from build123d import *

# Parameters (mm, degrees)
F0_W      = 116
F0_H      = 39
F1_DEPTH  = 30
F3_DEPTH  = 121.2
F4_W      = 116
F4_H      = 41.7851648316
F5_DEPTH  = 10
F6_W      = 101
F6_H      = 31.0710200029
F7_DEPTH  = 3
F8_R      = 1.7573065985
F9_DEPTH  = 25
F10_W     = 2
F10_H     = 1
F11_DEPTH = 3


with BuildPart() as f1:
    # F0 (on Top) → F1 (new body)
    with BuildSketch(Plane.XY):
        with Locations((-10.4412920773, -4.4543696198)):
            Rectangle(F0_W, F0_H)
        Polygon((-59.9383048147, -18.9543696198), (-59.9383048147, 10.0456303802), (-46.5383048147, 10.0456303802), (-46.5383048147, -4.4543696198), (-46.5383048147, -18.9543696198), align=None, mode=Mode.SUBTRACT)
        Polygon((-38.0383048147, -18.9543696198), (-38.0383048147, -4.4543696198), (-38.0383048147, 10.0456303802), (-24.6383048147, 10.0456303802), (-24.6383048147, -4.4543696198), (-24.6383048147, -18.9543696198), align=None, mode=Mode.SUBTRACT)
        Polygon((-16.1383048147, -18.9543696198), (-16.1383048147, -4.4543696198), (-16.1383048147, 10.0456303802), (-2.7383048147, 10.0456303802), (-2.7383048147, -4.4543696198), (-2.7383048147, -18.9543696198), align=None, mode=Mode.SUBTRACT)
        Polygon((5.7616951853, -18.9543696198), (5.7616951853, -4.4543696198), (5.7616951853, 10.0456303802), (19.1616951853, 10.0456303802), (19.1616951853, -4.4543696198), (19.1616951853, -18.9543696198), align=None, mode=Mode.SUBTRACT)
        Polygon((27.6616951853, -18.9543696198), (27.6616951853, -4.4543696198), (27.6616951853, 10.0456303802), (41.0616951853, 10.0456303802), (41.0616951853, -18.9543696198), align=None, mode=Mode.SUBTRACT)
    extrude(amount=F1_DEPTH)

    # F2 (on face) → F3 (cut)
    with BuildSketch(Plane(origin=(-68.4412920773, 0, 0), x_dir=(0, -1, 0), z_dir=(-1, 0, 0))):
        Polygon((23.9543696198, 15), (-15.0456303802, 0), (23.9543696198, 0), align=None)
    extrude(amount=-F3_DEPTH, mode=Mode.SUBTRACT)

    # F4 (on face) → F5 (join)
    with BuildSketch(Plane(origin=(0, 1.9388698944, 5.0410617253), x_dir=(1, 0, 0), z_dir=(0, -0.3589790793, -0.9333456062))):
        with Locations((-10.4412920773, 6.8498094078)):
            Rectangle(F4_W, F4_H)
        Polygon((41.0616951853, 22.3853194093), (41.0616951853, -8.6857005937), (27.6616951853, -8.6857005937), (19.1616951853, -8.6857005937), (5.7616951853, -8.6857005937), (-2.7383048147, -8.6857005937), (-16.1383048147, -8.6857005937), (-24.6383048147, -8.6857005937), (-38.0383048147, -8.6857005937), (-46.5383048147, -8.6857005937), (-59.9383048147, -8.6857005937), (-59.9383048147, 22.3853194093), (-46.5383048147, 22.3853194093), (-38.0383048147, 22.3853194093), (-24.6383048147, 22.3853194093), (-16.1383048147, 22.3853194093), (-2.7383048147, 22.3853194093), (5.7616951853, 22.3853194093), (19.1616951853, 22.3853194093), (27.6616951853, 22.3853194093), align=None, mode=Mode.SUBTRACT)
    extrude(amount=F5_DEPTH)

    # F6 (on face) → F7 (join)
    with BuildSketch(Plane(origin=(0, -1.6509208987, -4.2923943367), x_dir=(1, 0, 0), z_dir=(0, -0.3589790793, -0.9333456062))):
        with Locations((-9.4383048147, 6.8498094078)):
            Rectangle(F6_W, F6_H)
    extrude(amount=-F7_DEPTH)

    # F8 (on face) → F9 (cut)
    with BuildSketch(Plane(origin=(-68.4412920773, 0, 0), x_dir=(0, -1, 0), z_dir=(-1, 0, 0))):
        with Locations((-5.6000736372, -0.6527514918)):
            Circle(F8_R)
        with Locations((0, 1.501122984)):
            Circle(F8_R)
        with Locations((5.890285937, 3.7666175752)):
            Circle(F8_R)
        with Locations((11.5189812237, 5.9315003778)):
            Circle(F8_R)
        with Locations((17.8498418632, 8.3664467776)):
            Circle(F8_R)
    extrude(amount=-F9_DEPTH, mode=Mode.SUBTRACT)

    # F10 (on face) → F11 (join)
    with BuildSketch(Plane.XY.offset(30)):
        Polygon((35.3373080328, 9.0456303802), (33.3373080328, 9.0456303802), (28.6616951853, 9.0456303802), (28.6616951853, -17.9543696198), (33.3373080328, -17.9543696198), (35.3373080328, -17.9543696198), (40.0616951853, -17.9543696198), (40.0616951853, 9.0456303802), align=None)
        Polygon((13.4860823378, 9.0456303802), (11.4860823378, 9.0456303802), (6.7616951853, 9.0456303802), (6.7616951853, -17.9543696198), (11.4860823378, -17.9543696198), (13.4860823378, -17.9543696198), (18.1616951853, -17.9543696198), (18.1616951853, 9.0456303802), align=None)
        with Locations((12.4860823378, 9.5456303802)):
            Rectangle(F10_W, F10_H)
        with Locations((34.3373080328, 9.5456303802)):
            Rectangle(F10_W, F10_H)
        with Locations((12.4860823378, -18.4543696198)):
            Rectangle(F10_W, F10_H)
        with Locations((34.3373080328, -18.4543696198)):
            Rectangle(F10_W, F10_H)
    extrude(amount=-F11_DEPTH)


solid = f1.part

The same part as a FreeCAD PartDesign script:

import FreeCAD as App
import Part
import Sketcher

V = App.Vector


def add_polygon(sketch, points):
    """Adds a closed chain of lines whose ends are joined by coincident constraints."""
    first, n = sketch.GeometryCount, len(points)
    for a, b in zip(points, points[1:] + points[:1]):
        sketch.addGeometry(Part.LineSegment(App.Vector(*a, 0), App.Vector(*b, 0)), False)
    for i in range(n):
        sketch.addConstraint(Sketcher.Constraint("Coincident", first + i, 2, first + (i + 1) % n, 1))

doc = App.newDocument("Part")
body = doc.addObject("PartDesign::Body", "Body")

# Sketch on XY plane
sketch1 = doc.addObject("Sketcher::SketchObject", "Sketch")
body.addObject(sketch1)
sketch1.AttachmentSupport = (doc.XY_Plane, [""])
sketch1.MapMode = "FlatFace"
add_polygon(sketch1, [(-68.441292, 15.04563), (-68.441292, -23.95437), (47.558708, -23.95437), (47.558708, 15.04563)])  # lines 0-3
add_polygon(sketch1, [(-46.538305, -18.95437), (-59.938305, -18.95437), (-59.938305, 10.04563), (-46.538305, 10.04563)])  # lines 4-7
add_polygon(sketch1, [(-24.638305, -18.95437), (-38.038305, -18.95437), (-38.038305, 10.04563), (-24.638305, 10.04563)])  # lines 8-11
add_polygon(sketch1, [(-2.738305, -18.95437), (-16.138305, -18.95437), (-16.138305, 10.04563), (-2.738305, 10.04563)])  # lines 12-15
add_polygon(sketch1, [(19.161695, -18.95437), (5.761695, -18.95437), (5.761695, 10.04563), (19.161695, 10.04563)])  # lines 16-19
add_polygon(sketch1, [(41.061695, -18.95437), (27.661695, -18.95437), (27.661695, 10.04563), (41.061695, 10.04563)])  # lines 20-23
sketch1.addConstraint(Sketcher.Constraint("Vertical", 0))
sketch1.addConstraint(Sketcher.Constraint("Horizontal", 1))
sketch1.addConstraint(Sketcher.Constraint("Vertical", 2))
sketch1.addConstraint(Sketcher.Constraint("Horizontal", 3))
sketch1.addConstraint(Sketcher.Constraint("Horizontal", 4))
sketch1.addConstraint(Sketcher.Constraint("Vertical", 5))
sketch1.addConstraint(Sketcher.Constraint("Horizontal", 6))
sketch1.addConstraint(Sketcher.Constraint("Vertical", 7))
sketch1.addConstraint(Sketcher.Constraint("Horizontal", 8))
sketch1.addConstraint(Sketcher.Constraint("Vertical", 9))
sketch1.addConstraint(Sketcher.Constraint("Horizontal", 10))
sketch1.addConstraint(Sketcher.Constraint("Vertical", 11))
sketch1.addConstraint(Sketcher.Constraint("Horizontal", 12))
sketch1.addConstraint(Sketcher.Constraint("Vertical", 13))
sketch1.addConstraint(Sketcher.Constraint("Horizontal", 14))
sketch1.addConstraint(Sketcher.Constraint("Vertical", 15))
sketch1.addConstraint(Sketcher.Constraint("Horizontal", 16))
sketch1.addConstraint(Sketcher.Constraint("Vertical", 17))
sketch1.addConstraint(Sketcher.Constraint("Horizontal", 18))
sketch1.addConstraint(Sketcher.Constraint("Vertical", 19))
sketch1.addConstraint(Sketcher.Constraint("Horizontal", 20))
sketch1.addConstraint(Sketcher.Constraint("Vertical", 21))
sketch1.addConstraint(Sketcher.Constraint("Horizontal", 22))
sketch1.addConstraint(Sketcher.Constraint("Vertical", 23))
sketch1.addConstraint(Sketcher.Constraint("Horizontal", 7, 2, 8, 2))
sketch1.addConstraint(Sketcher.Constraint("Horizontal", 6, 2, 9, 2))
sketch1.addConstraint(Sketcher.Constraint("Horizontal", 11, 2, 12, 2))
sketch1.addConstraint(Sketcher.Constraint("Horizontal", 10, 2, 13, 2))
sketch1.addConstraint(Sketcher.Constraint("Horizontal", 15, 2, 16, 2))
sketch1.addConstraint(Sketcher.Constraint("Horizontal", 14, 2, 17, 2))
sketch1.addConstraint(Sketcher.Constraint("Horizontal", 19, 2, 20, 2))
sketch1.addConstraint(Sketcher.Constraint("Horizontal", 18, 2, 21, 2))
sketch1.addConstraint(Sketcher.Constraint("Equal", 6, 8))
sketch1.addConstraint(Sketcher.Constraint("Equal", 10, 12))
sketch1.addConstraint(Sketcher.Constraint("Equal", 14, 16))
sketch1.addConstraint(Sketcher.Constraint("Equal", 18, 20))
sketch1.addConstraint(Sketcher.Constraint("DistanceX", 1, 1, 1, 2, 116.0))
sketch1.addConstraint(Sketcher.Constraint("DistanceY", 0, 2, 0, 1, 39.0))
sketch1.addConstraint(Sketcher.Constraint("DistanceY", 5, 1, 5, 2, 29.0))
sketch1.addConstraint(Sketcher.Constraint("DistanceX", 4, 2, 4, 1, 13.4))
sketch1.addConstraint(Sketcher.Constraint("DistanceY", 0, 2, 4, 2, 5.0))
sketch1.addConstraint(Sketcher.Constraint("DistanceX", 7, 2, 8, 2, 8.5))
sketch1.addConstraint(Sketcher.Constraint("DistanceX", 11, 2, 12, 2, 8.5))
sketch1.addConstraint(Sketcher.Constraint("DistanceX", 15, 2, 16, 2, 8.5))
sketch1.addConstraint(Sketcher.Constraint("DistanceX", 19, 2, 20, 2, 8.5))
sketch1.addConstraint(Sketcher.Constraint("DistanceY", 0, 2, -1, 1, 23.95437))
sketch1.addConstraint(Sketcher.Constraint("DistanceX", 0, 2, -1, 1, 68.441292))
sketch1.addConstraint(Sketcher.Constraint("DistanceX", 4, 2, -1, 1, 59.938305))
pad1 = doc.addObject("PartDesign::Pad", "Pad")
body.addObject(pad1)
pad1.Profile = sketch1
pad1.Length = 30

# Sketch on YZ plane
sketch2 = doc.addObject("Sketcher::SketchObject", "Sketch001")
body.addObject(sketch2)
sketch2.AttachmentSupport = (doc.YZ_Plane, [""])
sketch2.MapMode = "FlatFace"
sketch2.AttachmentOffset = App.Placement(V(0, 0, -68.441292), App.Rotation())
add_polygon(sketch2, [(-23.95437, 15), (15.04563, 0), (-23.95437, 0)])  # lines 0-2
sketch2.addConstraint(Sketcher.Constraint("Horizontal", 1))
sketch2.addConstraint(Sketcher.Constraint("Vertical", 2))
sketch2.addConstraint(Sketcher.Constraint("PointOnObject", 0, 2, -1))
sketch2.addConstraint(Sketcher.Constraint("DistanceX", 1, 2, 1, 1, 39.0))
sketch2.addConstraint(Sketcher.Constraint("DistanceY", 2, 1, 2, 2, 15.0))
sketch2.addConstraint(Sketcher.Constraint("DistanceX", -1, 1, 0, 2, 15.04563))
pocket1 = doc.addObject("PartDesign::Pocket", "Pocket")
body.addObject(pocket1)
pocket1.Profile = sketch2
pocket1.Length = 121.2
pocket1.Reversed = True

# Sketch on an angled plane
sketch3 = doc.addObject("Sketcher::SketchObject", "Sketch002")
body.addObject(sketch3)
sketch3.Placement = App.Placement(V(0, 1.93887, 5.041062), App.Rotation(V(1, 0, 0), V(0, -0.933345606, 0.358979079), V(0, -0.358979079, -0.933345606), "ZXY"))
add_polygon(sketch3, [(-68.441292, 27.742392), (-68.441292, -14.042773), (47.558708, -14.042773), (47.558708, 27.742392)])  # lines 0-3
add_polygon(sketch3, [(-59.938305, 22.385319), (41.061695, 22.385319), (41.061695, -8.685701), (-59.938305, -8.685701)])  # lines 4-7
sketch3.addConstraint(Sketcher.Constraint("Vertical", 0))
sketch3.addConstraint(Sketcher.Constraint("Horizontal", 1))
sketch3.addConstraint(Sketcher.Constraint("Vertical", 2))
sketch3.addConstraint(Sketcher.Constraint("Horizontal", 3))
sketch3.addConstraint(Sketcher.Constraint("Horizontal", 4))
sketch3.addConstraint(Sketcher.Constraint("Vertical", 5))
sketch3.addConstraint(Sketcher.Constraint("Horizontal", 6))
sketch3.addConstraint(Sketcher.Constraint("Vertical", 7))
sketch3.addConstraint(Sketcher.Constraint("DistanceX", 1, 1, 1, 2, 116.0))
sketch3.addConstraint(Sketcher.Constraint("DistanceX", 4, 1, 4, 2, 101.0))
sketch3.addConstraint(Sketcher.Constraint("DistanceY", 5, 2, 5, 1, 31.07102))
sketch3.addConstraint(Sketcher.Constraint("DistanceY", 5, 2, -1, 1, 8.685701))
sketch3.addConstraint(Sketcher.Constraint("DistanceY", 0, 2, 0, 1, 41.785165))
sketch3.addConstraint(Sketcher.Constraint("DistanceY", -1, 1, 2, 2, 27.742392))
sketch3.addConstraint(Sketcher.Constraint("DistanceX", 0, 2, -1, 1, 68.441292))
sketch3.addConstraint(Sketcher.Constraint("DistanceX", -1, 1, 4, 2, 41.061695))
pad2 = doc.addObject("PartDesign::Pad", "Pad001")
body.addObject(pad2)
pad2.Profile = sketch3
pad2.Length = 10

# Sketch on an angled plane
sketch4 = doc.addObject("Sketcher::SketchObject", "Sketch003")
body.addObject(sketch4)
sketch4.Placement = App.Placement(V(0, -1.650921, -4.292394), App.Rotation(V(1, 0, 0), V(0, -0.933345606, 0.358979079), V(0, -0.358979079, -0.933345606), "ZXY"))
add_polygon(sketch4, [(-59.938305, 22.385319), (-59.938305, -8.685701), (41.061695, -8.685701), (41.061695, 22.385319)])  # lines 0-3
sketch4.addConstraint(Sketcher.Constraint("Vertical", 0))
sketch4.addConstraint(Sketcher.Constraint("Horizontal", 1))
sketch4.addConstraint(Sketcher.Constraint("Vertical", 2))
sketch4.addConstraint(Sketcher.Constraint("Horizontal", 3))
sketch4.addConstraint(Sketcher.Constraint("DistanceX", 1, 1, 1, 2, 101.0))
sketch4.addConstraint(Sketcher.Constraint("DistanceY", 0, 2, 0, 1, 31.07102))
sketch4.addConstraint(Sketcher.Constraint("DistanceY", 0, 2, -1, 1, 8.685701))
sketch4.addConstraint(Sketcher.Constraint("DistanceX", 0, 2, -1, 1, 59.938305))
pad3 = doc.addObject("PartDesign::Pad", "Pad002")
body.addObject(pad3)
pad3.Profile = sketch4
pad3.Length = 3
pad3.Reversed = True

# Sketch on YZ plane
sketch5 = doc.addObject("Sketcher::SketchObject", "Sketch004")
body.addObject(sketch5)
sketch5.AttachmentSupport = (doc.YZ_Plane, [""])
sketch5.MapMode = "FlatFace"
sketch5.AttachmentOffset = App.Placement(V(0, 0, -68.441292), App.Rotation())
sketch5.addGeometry(Part.Circle(V(5.600074, -0.652751, 0), V(0, 0, 1), 1.757307), False)
sketch5.addGeometry(Part.Circle(V(0, 1.501123, 0), V(0, 0, 1), 1.757307), False)
sketch5.addGeometry(Part.Circle(V(-5.890286, 3.766618, 0), V(0, 0, 1), 1.757307), False)
sketch5.addGeometry(Part.Circle(V(-11.518981, 5.9315, 0), V(0, 0, 1), 1.757307), False)
sketch5.addGeometry(Part.Circle(V(-17.849842, 8.366447, 0), V(0, 0, 1), 1.757307), False)
sketch5.addConstraint(Sketcher.Constraint("Equal", 0, 1))
sketch5.addConstraint(Sketcher.Constraint("Equal", 1, 2))
sketch5.addConstraint(Sketcher.Constraint("Equal", 2, 3))
sketch5.addConstraint(Sketcher.Constraint("Equal", 3, 4))
sketch5.addConstraint(Sketcher.Constraint("PointOnObject", 1, 3, -2))
sketch5.addConstraint(Sketcher.Constraint("Diameter", 0, 3.514613))
sketch5.addConstraint(Sketcher.Constraint("DistanceY", -1, 1, 3, 3, 5.9315))
sketch5.addConstraint(Sketcher.Constraint("DistanceY", 0, 3, 4, 3, 9.019198))
sketch5.addConstraint(Sketcher.Constraint("DistanceY", 0, 3, -1, 1, 0.652751))
sketch5.addConstraint(Sketcher.Constraint("DistanceX", 3, 3, -1, 1, 11.518981))
sketch5.addConstraint(Sketcher.Constraint("DistanceX", 4, 3, -1, 1, 17.849842))
sketch5.addConstraint(Sketcher.Constraint("DistanceX", 2, 3, 0, 3, 11.49036))
sketch5.addConstraint(Sketcher.Constraint("DistanceY", 0, 3, 2, 3, 4.419369))
sketch5.addConstraint(Sketcher.Constraint("DistanceX", -1, 1, 0, 3, 5.600074))
sketch5.addConstraint(Sketcher.Constraint("DistanceY", -1, 1, 1, 3, 1.501123))
pocket2 = doc.addObject("PartDesign::Pocket", "Pocket001")
body.addObject(pocket2)
pocket2.Profile = sketch5
pocket2.Length = 25
pocket2.Reversed = True

# Sketch on XY plane
sketch6 = doc.addObject("Sketcher::SketchObject", "Sketch005")
body.addObject(sketch6)
sketch6.AttachmentSupport = (doc.XY_Plane, [""])
sketch6.MapMode = "FlatFace"
sketch6.AttachmentOffset = App.Placement(V(0, 0, 30), App.Rotation())
add_polygon(sketch6, [(28.661695, 9.04563), (28.661695, -17.95437), (33.337308, -17.95437), (33.337308, -18.95437), (35.337308, -18.95437), (35.337308, -17.95437), (40.061695, -17.95437), (40.061695, 9.04563), (35.337308, 9.04563), (35.337308, 10.04563), (33.337308, 10.04563), (33.337308, 9.04563)])  # lines 0-11
add_polygon(sketch6, [(6.761695, 9.04563), (6.761695, -17.95437), (11.486082, -17.95437), (11.486082, -18.95437), (13.486082, -18.95437), (13.486082, -17.95437), (18.161695, -17.95437), (18.161695, 9.04563), (13.486082, 9.04563), (13.486082, 10.04563), (11.486082, 10.04563), (11.486082, 9.04563)])  # lines 12-23
sketch6.addConstraint(Sketcher.Constraint("Vertical", 0))
sketch6.addConstraint(Sketcher.Constraint("Horizontal", 1))
sketch6.addConstraint(Sketcher.Constraint("Vertical", 2))
sketch6.addConstraint(Sketcher.Constraint("Horizontal", 3))
sketch6.addConstraint(Sketcher.Constraint("Vertical", 4))
sketch6.addConstraint(Sketcher.Constraint("Horizontal", 5))
sketch6.addConstraint(Sketcher.Constraint("Vertical", 6))
sketch6.addConstraint(Sketcher.Constraint("Horizontal", 7))
sketch6.addConstraint(Sketcher.Constraint("Vertical", 8))
sketch6.addConstraint(Sketcher.Constraint("Horizontal", 9))
sketch6.addConstraint(Sketcher.Constraint("Vertical", 10))
sketch6.addConstraint(Sketcher.Constraint("Horizontal", 11))
sketch6.addConstraint(Sketcher.Constraint("Vertical", 12))
sketch6.addConstraint(Sketcher.Constraint("Horizontal", 13))
sketch6.addConstraint(Sketcher.Constraint("Vertical", 14))
sketch6.addConstraint(Sketcher.Constraint("Horizontal", 15))
sketch6.addConstraint(Sketcher.Constraint("Vertical", 16))
sketch6.addConstraint(Sketcher.Constraint("Horizontal", 17))
sketch6.addConstraint(Sketcher.Constraint("Vertical", 18))
sketch6.addConstraint(Sketcher.Constraint("Horizontal", 19))
sketch6.addConstraint(Sketcher.Constraint("Vertical", 20))
sketch6.addConstraint(Sketcher.Constraint("Horizontal", 21))
sketch6.addConstraint(Sketcher.Constraint("Vertical", 22))
sketch6.addConstraint(Sketcher.Constraint("Horizontal", 23))
sketch6.addConstraint(Sketcher.Constraint("Horizontal", 1, 2, 4, 2))
sketch6.addConstraint(Sketcher.Constraint("Horizontal", 7, 2, 10, 2))
sketch6.addConstraint(Sketcher.Constraint("Horizontal", 5, 2, 12, 2))
sketch6.addConstraint(Sketcher.Constraint("Horizontal", 3, 2, 14, 2))
sketch6.addConstraint(Sketcher.Constraint("Horizontal", 13, 2, 16, 2))
sketch6.addConstraint(Sketcher.Constraint("Horizontal", 11, 2, 18, 2))
sketch6.addConstraint(Sketcher.Constraint("Horizontal", 9, 2, 20, 2))
sketch6.addConstraint(Sketcher.Constraint("Horizontal", 19, 2, 22, 2))
sketch6.addConstraint(Sketcher.Constraint("Vertical", 4, 2, 7, 2))
sketch6.addConstraint(Sketcher.Constraint("Vertical", 2, 2, 9, 2))
sketch6.addConstraint(Sketcher.Constraint("Vertical", 16, 2, 19, 2))
sketch6.addConstraint(Sketcher.Constraint("Vertical", 14, 2, 21, 2))
sketch6.addConstraint(Sketcher.Constraint("Equal", 7, 13))
sketch6.addConstraint(Sketcher.Constraint("Equal", 9, 15))
sketch6.addConstraint(Sketcher.Constraint("Equal", 11, 17))
sketch6.addConstraint(Sketcher.Constraint("Equal", 4, 8))
sketch6.addConstraint(Sketcher.Constraint("DistanceX", 3, 1, 3, 2, 2.0))
sketch6.addConstraint(Sketcher.Constraint("DistanceY", 0, 2, 0, 1, 27.0))
sketch6.addConstraint(Sketcher.Constraint("DistanceY", 2, 2, 2, 1, 1.0))
sketch6.addConstraint(Sketcher.Constraint("DistanceX", 0, 2, 5, 2, 11.4))
sketch6.addConstraint(Sketcher.Constraint("DistanceX", 12, 2, 0, 2, 21.9))
sketch6.addConstraint(Sketcher.Constraint("DistanceX", 1, 1, 1, 2, 4.675613))
sketch6.addConstraint(Sketcher.Constraint("DistanceY", 0, 2, -1, 1, 17.95437))
sketch6.addConstraint(Sketcher.Constraint("DistanceX", -1, 1, 1, 2, 33.337308))
pad4 = doc.addObject("PartDesign::Pad", "Pad003")
body.addObject(pad4)
pad4.Profile = sketch6
pad4.Length = 3
pad4.Reversed = True

doc.recompute()
